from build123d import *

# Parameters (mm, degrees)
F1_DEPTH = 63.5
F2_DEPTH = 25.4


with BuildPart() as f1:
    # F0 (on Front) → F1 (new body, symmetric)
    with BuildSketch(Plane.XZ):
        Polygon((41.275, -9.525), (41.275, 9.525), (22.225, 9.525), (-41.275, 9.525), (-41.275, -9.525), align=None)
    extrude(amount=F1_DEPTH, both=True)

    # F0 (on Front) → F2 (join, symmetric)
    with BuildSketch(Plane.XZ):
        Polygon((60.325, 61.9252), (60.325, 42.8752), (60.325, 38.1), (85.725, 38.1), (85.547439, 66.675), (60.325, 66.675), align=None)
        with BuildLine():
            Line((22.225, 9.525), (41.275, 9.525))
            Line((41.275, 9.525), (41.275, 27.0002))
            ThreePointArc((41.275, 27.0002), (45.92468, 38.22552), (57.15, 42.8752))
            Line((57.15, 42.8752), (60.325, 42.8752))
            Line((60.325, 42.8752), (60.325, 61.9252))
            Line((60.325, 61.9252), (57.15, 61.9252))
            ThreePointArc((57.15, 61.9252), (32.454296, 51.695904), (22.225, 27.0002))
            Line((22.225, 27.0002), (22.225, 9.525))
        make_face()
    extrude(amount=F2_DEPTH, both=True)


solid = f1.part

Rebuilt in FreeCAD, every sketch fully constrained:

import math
import FreeCAD as App
import Part
import Sketcher
from FreeCAD import Vector
Q = App.Units.Quantity


def add_polygon(sketch, points):
    """Adds a closed chain of lines whose ends are joined by coincident constraints."""
    first, n = sketch.GeometryCount, len(points)
    for a, b in zip(points, points[1:] + points[:1]):
        sketch.addGeometry(Part.LineSegment(App.Vector(*a, 0), App.Vector(*b, 0)), False)
    for i in range(n):
        sketch.addConstraint(Sketcher.Constraint("Coincident", first + i, 2, first + (i + 1) % n, 1))

doc = App.newDocument("Part")
params = doc.addObject("Spreadsheet::Sheet", "Params")
for row, (alias, value) in enumerate([
    ("sketch1_width", "3.25 in"),
    ("sketch1_height", "0.75 in"),
    ("pad1_length", "5 in"),
    ("sketch2_width", "1 in"),
    ("sketch2_radius", "1.375 in"),
    ("sketch2_radius2", "0.625 in"),
    ("sketch2_height", "0.187 in"),
    ("sketch2_height2", "0.688 in"),
    ("pad2_length", "2 in"),
], start=1):
    params.set(f"A{row}", alias)
    params.set(f"B{row}", "=" + value)
    params.setAlias(f"B{row}", alias)

body = doc.addObject("PartDesign::Body", "Body")

# Sketch on XZ plane
sketch1 = body.newObject("Sketcher::SketchObject", "Sketch")
sketch1.AttachmentSupport = (doc.getObject("XZ_Plane"), [""])
sketch1.MapMode = "FlatFace"
add_polygon(sketch1, [(41, -10), (41, 10), (-41, 10), (-41, -10)])  # lines 0-3
sketch1.addConstraint(Sketcher.Constraint("Vertical", 0))
sketch1.addConstraint(Sketcher.Constraint("Horizontal", 1))
sketch1.addConstraint(Sketcher.Constraint("Vertical", 2))
sketch1.addConstraint(Sketcher.Constraint("Horizontal", 3))
sketch1.addConstraint(Sketcher.Constraint("Symmetric", 0, 2, 2, 2, -1, 1))
sketch1.addConstraint(Sketcher.Constraint("DistanceX", 1, 2, 1, 1, Q("3.25 in")))
sketch1.addConstraint(Sketcher.Constraint("DistanceY", 0, 1, 0, 2, Q("0.75 in")))
sketch1.setExpression("Constraints[9]", "Params.sketch1_width")
sketch1.setExpression("Constraints[10]", "Params.sketch1_height")
pad1 = body.newObject("PartDesign::Pad", "Pad")
pad1.Profile = sketch1
pad1.setExpression("Length", "Params.pad1_length")
pad1.Midplane = True

# Sketch on XZ plane
sketch2 = body.newObject("Sketcher::SketchObject", "Sketch001")
sketch2.AttachmentSupport = (doc.getObject("XZ_Plane"), [""])
sketch2.MapMode = "FlatFace"
sketch2.addGeometry(Part.LineSegment(Vector(60.3, 38.1, 0), Vector(85.7, 38.1, 0)), False)
sketch2.addGeometry(Part.LineSegment(Vector(85.7, 38.1, 0), Vector(85.5, 66.7, 0)), False)
sketch2.addGeometry(Part.LineSegment(Vector(85.5, 66.7, 0), Vector(60.3, 66.7, 0)), False)
sketch2.addGeometry(Part.LineSegment(Vector(60.3, 66.7, 0), Vector(60.3, 61.9, 0)), False)
sketch2.addGeometry(Part.LineSegment(Vector(60.3, 61.9, 0), Vector(57.1, 61.9, 0)), False)
sketch2.addGeometry(Part.ArcOfCircle(Part.Circle(Vector(57.2, 27, 0), Vector(0, 0, 1), 34.9), math.radians(90), math.radians(180)), False)
sketch2.addGeometry(Part.LineSegment(Vector(22.2, 27, 0), Vector(22.2, 9.5, 0)), False)
sketch2.addGeometry(Part.LineSegment(Vector(22.2, 9.5, 0), Vector(41.3, 9.5, 0)), False)
sketch2.addGeometry(Part.LineSegment(Vector(41.3, 9.5, 0), Vector(41.3, 27, 0)), False)
sketch2.addGeometry(Part.ArcOfCircle(Part.Circle(Vector(57.2, 27, 0), Vector(0, 0, 1), 15.9), math.radians(90), math.radians(180)), False)
sketch2.addGeometry(Part.LineSegment(Vector(57.1, 42.9, 0), Vector(60.3, 42.9, 0)), False)
sketch2.addGeometry(Part.LineSegment(Vector(60.3, 42.9, 0), Vector(60.3, 38.1, 0)), False)
sketch2.addConstraint(Sketcher.Constraint("Coincident", 0, 2, 1, 1))
sketch2.addConstraint(Sketcher.Constraint("Coincident", 1, 2, 2, 1))
sketch2.addConstraint(Sketcher.Constraint("Coincident", 2, 2, 3, 1))
sketch2.addConstraint(Sketcher.Constraint("Coincident", 3, 2, 4, 1))
sketch2.addConstraint(Sketcher.Constraint("Tangent", 4, 2, 5, 1))
sketch2.addConstraint(Sketcher.Constraint("Tangent", 5, 2, 6, 1))
sketch2.addConstraint(Sketcher.Constraint("Coincident", 6, 2, 7, 1))
sketch2.addConstraint(Sketcher.Constraint("Coincident", 7, 2, 8, 1))
sketch2.addConstraint(Sketcher.Constraint("Tangent", 8, 2, 9, 2))
sketch2.addConstraint(Sketcher.Constraint("Tangent", 9, 1, 10, 1))
sketch2.addConstraint(Sketcher.Constraint("Coincident", 10, 2, 11, 1))
sketch2.addConstraint(Sketcher.Constraint("Coincident", 11, 2, 0, 1))
sketch2.addConstraint(Sketcher.Constraint("Horizontal", 0))
sketch2.addConstraint(Sketcher.Constraint("Horizontal", 2))
sketch2.addConstraint(Sketcher.Constraint("Vertical", 3))
sketch2.addConstraint(Sketcher.Constraint("Horizontal", 4))
sketch2.addConstraint(Sketcher.Constraint("Vertical", 6))
sketch2.addConstraint(Sketcher.Constraint("Horizontal", 7))
sketch2.addConstraint(Sketcher.Constraint("Vertical", 8))
sketch2.addConstraint(Sketcher.Constraint("Horizontal", 10))
sketch2.addConstraint(Sketcher.Constraint("Vertical", 11))
sketch2.addConstraint(Sketcher.Constraint("Coincident", 9, 3, 5, 3))
sketch2.addConstraint(Sketcher.Constraint("Vertical", 3, 2, 10, 2))
sketch2.addConstraint(Sketcher.Constraint("DistanceX", 0, 1, 0, 2, Q("1 in")))
sketch2.addConstraint(Sketcher.Constraint("Radius", 5, Q("1.375 in")))
sketch2.addConstraint(Sketcher.Constraint("Radius", 9, Q("0.625 in")))
sketch2.addConstraint(Sketcher.Constraint("DistanceY", -1, 1, 0, 2, Q("1.5 in")))
sketch2.addConstraint(Sketcher.Constraint("DistanceX", 5, 2, 3, 2, Q("1.5 in")))
sketch2.addConstraint(Sketcher.Constraint("DistanceY", 3, 2, 3, 1, Q("0.187 in")))
sketch2.addConstraint(Sketcher.Constraint("DistanceY", 6, 2, 6, 1, Q("0.688 in")))
sketch2.addConstraint(Sketcher.Constraint("DistanceY", 11, 2, 11, 1, Q("0.188 in")))
sketch2.addConstraint(Sketcher.Constraint("DistanceX", -1, 1, 5, 3, Q("2.25 in")))
sketch2.addConstraint(Sketcher.Constraint("DistanceX", 2, 2, 2, 1, Q("25.222439 mm")))
sketch2.setExpression("Constraints[23]", "Params.sketch2_width")
sketch2.setExpression("Constraints[24]", "Params.sketch2_radius")
sketch2.setExpression("Constraints[25]", "Params.sketch2_radius2")
sketch2.setExpression("Constraints[28]", "Params.sketch2_height")
sketch2.setExpression("Constraints[29]", "Params.sketch2_height2")
pad2 = body.newObject("PartDesign::Pad", "Pad001")
pad2.Profile = sketch2
pad2.setExpression("Length", "Params.pad2_length")
pad2.Midplane = True

doc.recompute()
